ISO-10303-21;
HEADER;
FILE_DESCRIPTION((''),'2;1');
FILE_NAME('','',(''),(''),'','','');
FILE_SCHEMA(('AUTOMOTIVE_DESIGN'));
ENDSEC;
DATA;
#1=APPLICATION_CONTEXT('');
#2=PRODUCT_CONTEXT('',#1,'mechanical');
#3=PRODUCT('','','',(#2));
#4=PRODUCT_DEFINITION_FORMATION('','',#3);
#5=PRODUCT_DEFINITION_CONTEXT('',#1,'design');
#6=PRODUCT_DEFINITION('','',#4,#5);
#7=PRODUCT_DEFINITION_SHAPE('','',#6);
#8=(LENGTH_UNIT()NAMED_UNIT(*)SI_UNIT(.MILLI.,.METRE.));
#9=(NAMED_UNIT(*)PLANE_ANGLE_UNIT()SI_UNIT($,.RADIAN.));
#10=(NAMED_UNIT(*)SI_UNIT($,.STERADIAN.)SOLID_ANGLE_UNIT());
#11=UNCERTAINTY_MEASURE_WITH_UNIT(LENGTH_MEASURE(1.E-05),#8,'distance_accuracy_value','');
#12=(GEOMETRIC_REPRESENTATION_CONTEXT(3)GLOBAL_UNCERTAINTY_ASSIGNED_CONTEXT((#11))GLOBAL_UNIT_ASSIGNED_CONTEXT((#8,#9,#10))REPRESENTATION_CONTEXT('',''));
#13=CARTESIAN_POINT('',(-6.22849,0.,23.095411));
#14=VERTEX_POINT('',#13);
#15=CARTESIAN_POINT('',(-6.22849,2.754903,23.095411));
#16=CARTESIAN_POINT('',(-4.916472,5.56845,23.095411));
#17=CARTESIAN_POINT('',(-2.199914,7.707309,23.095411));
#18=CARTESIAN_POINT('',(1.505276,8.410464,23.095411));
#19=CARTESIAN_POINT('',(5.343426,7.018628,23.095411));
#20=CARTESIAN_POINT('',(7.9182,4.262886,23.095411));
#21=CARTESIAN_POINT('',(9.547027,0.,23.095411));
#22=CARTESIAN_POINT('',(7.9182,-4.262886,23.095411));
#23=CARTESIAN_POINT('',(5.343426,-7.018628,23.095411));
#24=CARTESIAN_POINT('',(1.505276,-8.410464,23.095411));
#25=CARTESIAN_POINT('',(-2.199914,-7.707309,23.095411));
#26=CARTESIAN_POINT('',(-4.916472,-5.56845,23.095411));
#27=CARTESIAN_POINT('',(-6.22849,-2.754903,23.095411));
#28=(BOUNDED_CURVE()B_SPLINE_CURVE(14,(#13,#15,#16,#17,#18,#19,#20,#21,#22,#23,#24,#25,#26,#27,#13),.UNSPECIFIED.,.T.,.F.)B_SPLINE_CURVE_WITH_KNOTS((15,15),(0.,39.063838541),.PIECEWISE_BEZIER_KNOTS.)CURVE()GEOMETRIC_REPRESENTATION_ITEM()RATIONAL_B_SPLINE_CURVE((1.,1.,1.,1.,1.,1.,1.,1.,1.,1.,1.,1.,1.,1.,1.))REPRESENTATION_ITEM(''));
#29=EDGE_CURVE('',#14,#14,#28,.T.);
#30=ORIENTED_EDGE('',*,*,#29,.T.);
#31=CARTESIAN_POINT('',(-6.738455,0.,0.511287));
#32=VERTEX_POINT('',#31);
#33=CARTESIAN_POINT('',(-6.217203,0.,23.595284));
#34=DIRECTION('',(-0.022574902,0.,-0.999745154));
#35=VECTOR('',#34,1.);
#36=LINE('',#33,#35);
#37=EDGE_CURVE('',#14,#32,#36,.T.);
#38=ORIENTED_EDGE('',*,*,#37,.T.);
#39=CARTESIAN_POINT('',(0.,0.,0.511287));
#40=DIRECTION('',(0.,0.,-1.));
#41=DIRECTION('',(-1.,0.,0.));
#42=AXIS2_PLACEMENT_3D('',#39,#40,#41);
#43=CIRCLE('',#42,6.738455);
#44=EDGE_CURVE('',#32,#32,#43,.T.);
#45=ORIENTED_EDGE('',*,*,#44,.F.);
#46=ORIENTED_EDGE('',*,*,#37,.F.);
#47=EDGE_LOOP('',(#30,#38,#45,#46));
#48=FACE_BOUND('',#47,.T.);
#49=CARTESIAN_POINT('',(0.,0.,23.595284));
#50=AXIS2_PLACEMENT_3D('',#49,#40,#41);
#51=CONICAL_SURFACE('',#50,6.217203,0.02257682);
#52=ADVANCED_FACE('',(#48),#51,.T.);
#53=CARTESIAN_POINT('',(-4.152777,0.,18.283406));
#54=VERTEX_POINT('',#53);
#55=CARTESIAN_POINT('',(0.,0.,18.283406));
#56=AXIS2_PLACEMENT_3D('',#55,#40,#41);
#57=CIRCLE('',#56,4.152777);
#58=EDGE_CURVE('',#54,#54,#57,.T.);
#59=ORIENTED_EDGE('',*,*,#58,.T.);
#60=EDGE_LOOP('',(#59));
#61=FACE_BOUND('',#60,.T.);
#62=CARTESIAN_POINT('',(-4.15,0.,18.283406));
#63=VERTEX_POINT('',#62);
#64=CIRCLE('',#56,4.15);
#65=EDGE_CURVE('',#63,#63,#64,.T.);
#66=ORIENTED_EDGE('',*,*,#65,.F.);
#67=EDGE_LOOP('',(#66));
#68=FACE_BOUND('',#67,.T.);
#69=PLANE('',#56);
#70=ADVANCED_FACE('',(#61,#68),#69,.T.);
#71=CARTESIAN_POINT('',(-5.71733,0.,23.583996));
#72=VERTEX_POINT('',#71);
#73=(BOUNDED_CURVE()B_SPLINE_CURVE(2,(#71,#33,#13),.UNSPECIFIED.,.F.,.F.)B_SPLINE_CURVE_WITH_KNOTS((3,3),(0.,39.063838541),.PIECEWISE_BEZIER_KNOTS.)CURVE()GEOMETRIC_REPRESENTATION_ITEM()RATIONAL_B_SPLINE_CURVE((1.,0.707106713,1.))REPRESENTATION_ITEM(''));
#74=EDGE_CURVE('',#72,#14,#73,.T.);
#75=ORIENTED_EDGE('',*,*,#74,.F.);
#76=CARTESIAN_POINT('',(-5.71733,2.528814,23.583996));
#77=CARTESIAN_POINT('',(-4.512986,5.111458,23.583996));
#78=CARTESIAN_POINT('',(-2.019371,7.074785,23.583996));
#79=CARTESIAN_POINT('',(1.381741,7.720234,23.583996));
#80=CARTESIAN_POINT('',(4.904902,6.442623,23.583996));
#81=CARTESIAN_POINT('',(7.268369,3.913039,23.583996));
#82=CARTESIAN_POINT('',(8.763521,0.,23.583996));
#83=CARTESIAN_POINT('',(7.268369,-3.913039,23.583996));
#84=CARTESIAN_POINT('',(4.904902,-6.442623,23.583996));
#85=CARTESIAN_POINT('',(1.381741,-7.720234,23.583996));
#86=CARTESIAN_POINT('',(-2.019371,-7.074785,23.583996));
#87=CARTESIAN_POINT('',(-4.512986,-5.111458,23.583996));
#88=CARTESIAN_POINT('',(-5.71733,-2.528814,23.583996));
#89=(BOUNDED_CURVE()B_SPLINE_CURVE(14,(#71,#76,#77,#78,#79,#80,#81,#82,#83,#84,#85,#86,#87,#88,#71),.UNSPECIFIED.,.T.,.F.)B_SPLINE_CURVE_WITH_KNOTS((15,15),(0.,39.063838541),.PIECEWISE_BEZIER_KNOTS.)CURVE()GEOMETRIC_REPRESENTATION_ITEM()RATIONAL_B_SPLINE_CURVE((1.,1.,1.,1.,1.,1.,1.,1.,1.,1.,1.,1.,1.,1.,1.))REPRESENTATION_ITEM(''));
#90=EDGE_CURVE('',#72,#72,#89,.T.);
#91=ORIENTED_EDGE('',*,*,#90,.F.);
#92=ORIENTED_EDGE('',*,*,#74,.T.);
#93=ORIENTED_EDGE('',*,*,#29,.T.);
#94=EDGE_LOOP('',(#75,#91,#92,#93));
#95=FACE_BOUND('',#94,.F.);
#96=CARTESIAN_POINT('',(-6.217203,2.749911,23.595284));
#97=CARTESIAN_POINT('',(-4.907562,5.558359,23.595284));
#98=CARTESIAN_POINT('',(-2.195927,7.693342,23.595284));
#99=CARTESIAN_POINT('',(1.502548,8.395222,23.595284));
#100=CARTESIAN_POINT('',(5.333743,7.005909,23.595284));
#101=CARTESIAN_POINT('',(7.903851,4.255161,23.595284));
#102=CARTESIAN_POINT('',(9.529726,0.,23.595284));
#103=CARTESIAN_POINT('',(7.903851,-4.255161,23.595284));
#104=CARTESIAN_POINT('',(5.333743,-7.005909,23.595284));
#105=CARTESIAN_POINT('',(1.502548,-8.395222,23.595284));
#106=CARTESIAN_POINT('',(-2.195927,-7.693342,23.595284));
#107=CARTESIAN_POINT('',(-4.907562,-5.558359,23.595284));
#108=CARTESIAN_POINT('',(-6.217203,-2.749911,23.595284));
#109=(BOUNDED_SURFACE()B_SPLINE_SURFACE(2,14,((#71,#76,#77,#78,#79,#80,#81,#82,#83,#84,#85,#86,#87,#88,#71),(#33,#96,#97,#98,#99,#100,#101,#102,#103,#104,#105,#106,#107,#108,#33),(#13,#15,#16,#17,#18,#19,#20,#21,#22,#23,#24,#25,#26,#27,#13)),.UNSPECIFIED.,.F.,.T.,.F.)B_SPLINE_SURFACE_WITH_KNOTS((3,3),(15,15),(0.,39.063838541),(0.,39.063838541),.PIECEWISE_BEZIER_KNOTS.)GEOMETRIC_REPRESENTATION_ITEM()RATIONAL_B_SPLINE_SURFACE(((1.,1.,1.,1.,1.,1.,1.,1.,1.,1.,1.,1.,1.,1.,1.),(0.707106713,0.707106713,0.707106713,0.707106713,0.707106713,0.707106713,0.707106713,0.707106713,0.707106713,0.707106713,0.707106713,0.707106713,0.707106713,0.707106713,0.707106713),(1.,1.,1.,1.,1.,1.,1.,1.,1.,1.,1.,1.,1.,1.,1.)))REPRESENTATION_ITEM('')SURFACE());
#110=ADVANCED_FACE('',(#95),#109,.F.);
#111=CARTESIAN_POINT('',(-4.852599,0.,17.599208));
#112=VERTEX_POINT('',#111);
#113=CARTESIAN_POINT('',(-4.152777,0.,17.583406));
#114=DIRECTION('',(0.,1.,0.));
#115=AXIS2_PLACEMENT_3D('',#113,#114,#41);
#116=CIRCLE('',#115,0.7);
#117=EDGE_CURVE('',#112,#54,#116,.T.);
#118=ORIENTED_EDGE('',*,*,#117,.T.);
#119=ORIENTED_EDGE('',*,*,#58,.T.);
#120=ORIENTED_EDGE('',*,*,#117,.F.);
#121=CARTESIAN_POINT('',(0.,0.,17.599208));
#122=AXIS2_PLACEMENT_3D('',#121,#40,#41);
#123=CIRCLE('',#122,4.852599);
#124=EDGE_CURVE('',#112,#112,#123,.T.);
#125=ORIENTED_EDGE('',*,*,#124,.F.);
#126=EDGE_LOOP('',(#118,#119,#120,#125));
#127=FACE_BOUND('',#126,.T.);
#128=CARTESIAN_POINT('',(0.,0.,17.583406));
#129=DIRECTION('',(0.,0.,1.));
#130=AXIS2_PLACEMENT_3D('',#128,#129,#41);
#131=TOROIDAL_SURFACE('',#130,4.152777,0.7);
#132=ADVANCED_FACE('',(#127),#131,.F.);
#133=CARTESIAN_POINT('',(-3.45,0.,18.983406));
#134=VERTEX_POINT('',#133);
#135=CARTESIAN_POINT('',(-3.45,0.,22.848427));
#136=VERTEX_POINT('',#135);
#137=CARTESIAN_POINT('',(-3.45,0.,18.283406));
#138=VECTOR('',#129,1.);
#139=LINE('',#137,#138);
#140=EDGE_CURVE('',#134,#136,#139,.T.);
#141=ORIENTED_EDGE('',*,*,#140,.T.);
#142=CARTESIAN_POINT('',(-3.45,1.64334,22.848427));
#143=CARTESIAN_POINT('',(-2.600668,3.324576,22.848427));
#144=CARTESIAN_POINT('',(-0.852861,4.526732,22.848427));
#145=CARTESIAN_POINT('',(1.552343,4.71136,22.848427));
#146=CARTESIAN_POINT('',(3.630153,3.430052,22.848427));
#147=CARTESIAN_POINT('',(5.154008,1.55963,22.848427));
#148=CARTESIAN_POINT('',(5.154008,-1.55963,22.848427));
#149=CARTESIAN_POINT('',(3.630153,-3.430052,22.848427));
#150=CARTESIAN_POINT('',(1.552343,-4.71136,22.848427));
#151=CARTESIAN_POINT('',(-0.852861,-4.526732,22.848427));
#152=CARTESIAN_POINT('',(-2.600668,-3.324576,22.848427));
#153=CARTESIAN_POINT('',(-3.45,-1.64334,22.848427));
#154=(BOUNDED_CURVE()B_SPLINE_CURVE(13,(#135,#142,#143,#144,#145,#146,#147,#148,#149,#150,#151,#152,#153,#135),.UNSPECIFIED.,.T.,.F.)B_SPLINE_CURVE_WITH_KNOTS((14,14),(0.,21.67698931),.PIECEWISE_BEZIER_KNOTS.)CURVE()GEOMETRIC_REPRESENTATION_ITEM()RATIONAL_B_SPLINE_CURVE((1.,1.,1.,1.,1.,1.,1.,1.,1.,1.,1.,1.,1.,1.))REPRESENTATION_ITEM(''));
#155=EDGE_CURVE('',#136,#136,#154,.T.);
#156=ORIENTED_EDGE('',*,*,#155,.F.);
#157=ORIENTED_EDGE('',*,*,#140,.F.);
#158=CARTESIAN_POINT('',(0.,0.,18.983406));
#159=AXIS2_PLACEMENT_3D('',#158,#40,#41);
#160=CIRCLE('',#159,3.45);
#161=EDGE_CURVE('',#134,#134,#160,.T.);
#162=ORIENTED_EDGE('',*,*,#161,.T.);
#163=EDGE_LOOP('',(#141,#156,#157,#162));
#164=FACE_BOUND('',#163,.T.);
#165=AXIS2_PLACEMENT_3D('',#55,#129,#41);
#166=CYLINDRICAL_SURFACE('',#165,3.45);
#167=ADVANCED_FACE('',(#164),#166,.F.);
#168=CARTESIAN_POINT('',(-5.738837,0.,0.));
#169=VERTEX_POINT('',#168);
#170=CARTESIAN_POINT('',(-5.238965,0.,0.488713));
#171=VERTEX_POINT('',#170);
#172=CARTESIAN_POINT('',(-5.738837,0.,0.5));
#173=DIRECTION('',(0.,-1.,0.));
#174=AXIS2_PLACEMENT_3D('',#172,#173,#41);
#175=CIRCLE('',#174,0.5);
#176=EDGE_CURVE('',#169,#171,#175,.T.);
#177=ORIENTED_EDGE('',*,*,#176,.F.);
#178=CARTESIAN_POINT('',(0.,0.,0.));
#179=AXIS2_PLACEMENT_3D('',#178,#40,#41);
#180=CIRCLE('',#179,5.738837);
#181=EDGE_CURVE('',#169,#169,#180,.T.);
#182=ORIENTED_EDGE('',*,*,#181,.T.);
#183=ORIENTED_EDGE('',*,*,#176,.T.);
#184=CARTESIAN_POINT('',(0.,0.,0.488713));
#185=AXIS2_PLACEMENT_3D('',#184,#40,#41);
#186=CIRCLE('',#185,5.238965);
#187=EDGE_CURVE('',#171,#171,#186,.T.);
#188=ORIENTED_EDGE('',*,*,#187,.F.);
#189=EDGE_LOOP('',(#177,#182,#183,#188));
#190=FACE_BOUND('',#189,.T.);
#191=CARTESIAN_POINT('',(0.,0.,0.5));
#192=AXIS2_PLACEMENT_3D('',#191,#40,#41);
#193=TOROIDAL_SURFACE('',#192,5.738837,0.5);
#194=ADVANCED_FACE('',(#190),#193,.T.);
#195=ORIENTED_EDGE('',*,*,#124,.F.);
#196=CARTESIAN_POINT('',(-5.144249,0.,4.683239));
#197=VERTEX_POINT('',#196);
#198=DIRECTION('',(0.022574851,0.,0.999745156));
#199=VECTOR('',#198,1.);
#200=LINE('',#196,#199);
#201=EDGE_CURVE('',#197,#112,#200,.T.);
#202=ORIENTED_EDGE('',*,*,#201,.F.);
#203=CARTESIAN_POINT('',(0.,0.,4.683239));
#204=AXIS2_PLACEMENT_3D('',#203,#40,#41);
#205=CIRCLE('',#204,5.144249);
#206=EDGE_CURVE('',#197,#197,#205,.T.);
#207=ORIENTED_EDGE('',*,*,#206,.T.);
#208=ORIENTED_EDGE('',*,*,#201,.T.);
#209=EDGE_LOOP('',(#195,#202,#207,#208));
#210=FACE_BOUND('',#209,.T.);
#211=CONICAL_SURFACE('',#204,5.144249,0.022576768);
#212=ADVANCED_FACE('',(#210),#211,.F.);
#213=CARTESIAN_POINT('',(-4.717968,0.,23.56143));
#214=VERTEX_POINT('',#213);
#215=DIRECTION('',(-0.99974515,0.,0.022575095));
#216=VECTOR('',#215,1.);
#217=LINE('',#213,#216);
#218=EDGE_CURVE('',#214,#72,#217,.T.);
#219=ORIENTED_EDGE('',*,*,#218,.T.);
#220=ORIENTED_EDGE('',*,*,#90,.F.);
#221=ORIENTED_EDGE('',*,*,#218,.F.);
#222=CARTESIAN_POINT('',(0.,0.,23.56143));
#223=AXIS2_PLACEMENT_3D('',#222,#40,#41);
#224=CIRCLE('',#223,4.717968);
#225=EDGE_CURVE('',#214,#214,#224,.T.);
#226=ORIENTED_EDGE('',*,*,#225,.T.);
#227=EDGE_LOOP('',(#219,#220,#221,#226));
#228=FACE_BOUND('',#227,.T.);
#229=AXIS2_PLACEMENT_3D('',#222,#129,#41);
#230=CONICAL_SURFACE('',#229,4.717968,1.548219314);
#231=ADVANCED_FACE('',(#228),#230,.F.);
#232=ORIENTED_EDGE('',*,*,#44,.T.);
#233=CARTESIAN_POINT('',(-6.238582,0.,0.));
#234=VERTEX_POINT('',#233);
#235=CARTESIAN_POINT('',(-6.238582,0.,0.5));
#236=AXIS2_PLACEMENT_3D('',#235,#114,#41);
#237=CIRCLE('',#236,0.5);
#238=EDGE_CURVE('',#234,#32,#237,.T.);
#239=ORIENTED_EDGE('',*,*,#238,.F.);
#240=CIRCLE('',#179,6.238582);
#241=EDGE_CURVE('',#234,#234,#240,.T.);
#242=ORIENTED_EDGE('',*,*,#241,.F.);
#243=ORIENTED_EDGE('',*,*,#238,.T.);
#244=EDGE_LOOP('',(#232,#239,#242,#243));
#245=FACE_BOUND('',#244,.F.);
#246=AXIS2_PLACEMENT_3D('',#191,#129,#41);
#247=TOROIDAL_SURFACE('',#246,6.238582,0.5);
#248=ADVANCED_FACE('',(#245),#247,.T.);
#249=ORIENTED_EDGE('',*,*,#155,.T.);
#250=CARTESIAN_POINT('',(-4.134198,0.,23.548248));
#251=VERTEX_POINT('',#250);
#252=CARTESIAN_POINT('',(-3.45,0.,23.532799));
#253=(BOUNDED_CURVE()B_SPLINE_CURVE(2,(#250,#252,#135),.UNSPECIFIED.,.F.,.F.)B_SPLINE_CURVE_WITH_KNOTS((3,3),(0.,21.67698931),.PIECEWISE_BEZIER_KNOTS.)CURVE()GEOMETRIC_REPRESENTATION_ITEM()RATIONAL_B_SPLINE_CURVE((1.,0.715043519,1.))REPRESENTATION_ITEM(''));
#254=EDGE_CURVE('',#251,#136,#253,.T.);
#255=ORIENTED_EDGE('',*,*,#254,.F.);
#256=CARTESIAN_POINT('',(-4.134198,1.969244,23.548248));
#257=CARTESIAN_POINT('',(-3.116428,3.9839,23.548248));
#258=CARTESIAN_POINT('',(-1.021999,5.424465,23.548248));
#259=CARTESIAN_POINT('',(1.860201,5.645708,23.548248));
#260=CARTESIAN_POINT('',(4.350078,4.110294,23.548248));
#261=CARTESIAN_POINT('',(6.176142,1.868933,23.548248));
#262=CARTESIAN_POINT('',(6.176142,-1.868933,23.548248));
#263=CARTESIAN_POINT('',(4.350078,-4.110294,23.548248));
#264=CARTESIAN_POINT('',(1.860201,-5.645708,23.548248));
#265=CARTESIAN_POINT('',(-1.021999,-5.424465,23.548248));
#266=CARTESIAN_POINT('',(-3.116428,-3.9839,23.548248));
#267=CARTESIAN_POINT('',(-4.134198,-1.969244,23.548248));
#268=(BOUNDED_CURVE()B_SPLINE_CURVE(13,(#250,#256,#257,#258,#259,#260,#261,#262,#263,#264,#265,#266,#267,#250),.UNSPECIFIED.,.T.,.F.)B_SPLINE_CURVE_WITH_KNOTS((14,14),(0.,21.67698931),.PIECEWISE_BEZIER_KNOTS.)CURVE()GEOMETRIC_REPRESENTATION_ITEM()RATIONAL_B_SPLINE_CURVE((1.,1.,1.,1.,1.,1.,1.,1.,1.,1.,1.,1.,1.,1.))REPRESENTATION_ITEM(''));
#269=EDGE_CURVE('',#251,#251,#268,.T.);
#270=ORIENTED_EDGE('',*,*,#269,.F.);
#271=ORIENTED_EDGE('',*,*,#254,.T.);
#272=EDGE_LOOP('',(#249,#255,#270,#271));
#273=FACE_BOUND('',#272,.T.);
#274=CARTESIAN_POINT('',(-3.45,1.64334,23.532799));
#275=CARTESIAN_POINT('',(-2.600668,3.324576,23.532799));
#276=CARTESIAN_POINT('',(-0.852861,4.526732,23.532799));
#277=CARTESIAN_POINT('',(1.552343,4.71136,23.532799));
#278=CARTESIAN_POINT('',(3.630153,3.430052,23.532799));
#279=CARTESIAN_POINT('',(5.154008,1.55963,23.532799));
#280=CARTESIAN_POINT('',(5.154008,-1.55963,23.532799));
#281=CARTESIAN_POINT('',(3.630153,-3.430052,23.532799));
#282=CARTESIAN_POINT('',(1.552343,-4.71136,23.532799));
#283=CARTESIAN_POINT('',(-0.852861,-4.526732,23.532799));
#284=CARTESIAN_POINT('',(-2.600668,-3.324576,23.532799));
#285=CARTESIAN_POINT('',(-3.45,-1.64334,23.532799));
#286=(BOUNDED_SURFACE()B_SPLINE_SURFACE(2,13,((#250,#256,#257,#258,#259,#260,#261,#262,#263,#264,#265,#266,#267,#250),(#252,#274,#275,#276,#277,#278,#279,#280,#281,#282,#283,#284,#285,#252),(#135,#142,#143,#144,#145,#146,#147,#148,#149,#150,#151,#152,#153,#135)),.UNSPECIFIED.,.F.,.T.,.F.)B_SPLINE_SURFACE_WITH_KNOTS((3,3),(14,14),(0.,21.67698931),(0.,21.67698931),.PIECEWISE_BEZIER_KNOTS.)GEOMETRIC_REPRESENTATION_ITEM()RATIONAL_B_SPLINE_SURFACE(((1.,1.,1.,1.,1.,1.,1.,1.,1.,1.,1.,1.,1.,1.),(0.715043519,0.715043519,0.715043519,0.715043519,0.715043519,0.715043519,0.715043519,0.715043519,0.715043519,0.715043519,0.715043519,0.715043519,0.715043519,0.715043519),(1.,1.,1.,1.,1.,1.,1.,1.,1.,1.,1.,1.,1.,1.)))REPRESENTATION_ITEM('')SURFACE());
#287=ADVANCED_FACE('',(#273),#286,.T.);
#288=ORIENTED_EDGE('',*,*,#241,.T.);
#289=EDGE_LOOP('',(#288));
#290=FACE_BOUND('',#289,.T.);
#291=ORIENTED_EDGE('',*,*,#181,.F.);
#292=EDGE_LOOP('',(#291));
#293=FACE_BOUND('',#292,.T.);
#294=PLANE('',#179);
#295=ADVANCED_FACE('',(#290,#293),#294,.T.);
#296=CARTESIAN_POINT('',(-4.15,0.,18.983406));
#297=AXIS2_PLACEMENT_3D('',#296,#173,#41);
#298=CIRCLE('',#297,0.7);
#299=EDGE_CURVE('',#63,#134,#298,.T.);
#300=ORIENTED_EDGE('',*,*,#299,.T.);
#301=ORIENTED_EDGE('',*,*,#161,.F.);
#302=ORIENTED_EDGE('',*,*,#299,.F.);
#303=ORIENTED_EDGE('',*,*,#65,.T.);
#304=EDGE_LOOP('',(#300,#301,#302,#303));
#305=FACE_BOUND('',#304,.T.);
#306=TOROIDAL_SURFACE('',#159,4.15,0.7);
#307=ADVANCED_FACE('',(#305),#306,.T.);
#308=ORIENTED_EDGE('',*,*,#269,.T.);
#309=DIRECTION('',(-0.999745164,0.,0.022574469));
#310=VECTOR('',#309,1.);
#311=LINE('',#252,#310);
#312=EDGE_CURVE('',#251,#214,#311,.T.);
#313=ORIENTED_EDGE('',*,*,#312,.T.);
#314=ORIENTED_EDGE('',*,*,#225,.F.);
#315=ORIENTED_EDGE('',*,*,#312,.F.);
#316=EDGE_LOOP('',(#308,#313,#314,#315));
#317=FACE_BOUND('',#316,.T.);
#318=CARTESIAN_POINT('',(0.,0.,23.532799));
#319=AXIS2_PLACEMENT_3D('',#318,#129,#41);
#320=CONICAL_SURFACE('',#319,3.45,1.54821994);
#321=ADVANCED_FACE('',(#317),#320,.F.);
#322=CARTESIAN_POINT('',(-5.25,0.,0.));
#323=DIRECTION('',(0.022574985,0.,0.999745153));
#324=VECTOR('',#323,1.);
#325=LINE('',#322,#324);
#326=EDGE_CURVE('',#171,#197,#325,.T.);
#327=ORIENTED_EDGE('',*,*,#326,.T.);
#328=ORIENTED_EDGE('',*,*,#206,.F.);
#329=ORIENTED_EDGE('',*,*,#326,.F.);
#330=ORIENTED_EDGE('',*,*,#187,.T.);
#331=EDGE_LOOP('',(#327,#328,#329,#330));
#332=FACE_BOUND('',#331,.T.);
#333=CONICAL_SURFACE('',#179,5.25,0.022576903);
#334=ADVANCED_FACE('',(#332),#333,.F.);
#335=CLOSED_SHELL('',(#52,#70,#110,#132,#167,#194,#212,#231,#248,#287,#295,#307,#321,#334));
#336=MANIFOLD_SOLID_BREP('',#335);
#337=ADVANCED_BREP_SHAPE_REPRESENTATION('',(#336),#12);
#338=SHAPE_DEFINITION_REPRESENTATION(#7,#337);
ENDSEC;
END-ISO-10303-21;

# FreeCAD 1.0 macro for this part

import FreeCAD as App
import Part
import Sketcher

V = App.Vector
Q = App.Units.Quantity


def edges_at(feature, points):
    """Names of the edges that pass closest to the given points."""
    edges = feature.Shape.Edges
    near = lambda p: min(range(len(edges)), key=lambda i: edges[i].distToShape(Part.Vertex(*p))[0])
    return sorted({f"Edge{near(p) + 1}" for p in points})


def add_polygon(sketch, points):
    """Adds a closed chain of lines whose ends are joined by coincident constraints."""
    first, n = sketch.GeometryCount, len(points)
    for a, b in zip(points, points[1:] + points[:1]):
        sketch.addGeometry(Part.LineSegment(App.Vector(*a, 0), App.Vector(*b, 0)), False)
    for i in range(n):
        sketch.addConstraint(Sketcher.Constraint("Coincident", first + i, 2, first + (i + 1) % n, 1))

doc = App.newDocument("Part")
body = doc.addObject("PartDesign::Body", "Body")

sketch1 = doc.addObject("Sketcher::SketchObject", "Sketch")
body.addObject(sketch1)
sketch1.AttachmentSupport = (doc.XZ_Plane, [""])
sketch1.MapMode = "FlatFace"
add_polygon(sketch1, [(-6.75, 0), (-5.25, 0), (-5.144249, 4.683239), (-4.837149, 18.283406), (-3.45, 18.283406), (-3.45, 23.532799), (-4.717968, 23.56143), (-6.217203, 23.595284)])
sketch1.addConstraint([
    Sketcher.Constraint("Horizontal", 0),
    Sketcher.Constraint("Horizontal", 3),
    Sketcher.Constraint("Vertical", 4),
    Sketcher.Constraint("PointOnObject", 0, 2, -1),
    Sketcher.Constraint("DistanceX", 0, 1, 0, 2, Q("1.5 mm")),
    Sketcher.Constraint("DistanceX", 0, 2, 3, 2, Q("1.8 mm")),
    Sketcher.Constraint("DistanceX", 0, 2, -1, 1, Q("5.25 mm")),
    Sketcher.Constraint("Distance", 7, Q("23.601299 mm")),
    Sketcher.Constraint("DistanceX", 3, 1, 3, 2, Q("1.387149 mm")),
    Sketcher.Constraint("DistanceY", -1, 1, 4, 2, Q("23.532799 mm")),
    Sketcher.Constraint("DistanceX", 1, 2, 2, 2, Q("0.3071 mm")),
    Sketcher.Constraint("Distance", 5, Q("1.268291 mm")),
    Sketcher.Constraint("DistanceY", 4, 1, 4, 2, Q("5.249393 mm")),
    Sketcher.Constraint("DistanceY", -1, 1, 1, 2, Q("4.683239 mm")),
    Sketcher.Constraint("DistanceY", -1, 1, 5, 2, Q("23.56143 mm")),
    Sketcher.Constraint("Distance", 6, Q("1.499617 mm")),
])
revolution = doc.addObject("PartDesign::Revolution", "Revolution")
body.addObject(revolution)
revolution.Profile = sketch1
revolution.ReferenceAxis = (sketch1, ["V_Axis"])
revolution.Angle = 360
doc.recompute()

fillet = doc.addObject("PartDesign::Fillet", "Fillet")
body.addObject(fillet)
fillet.Base = (revolution, edges_at(revolution, [(6.217, 0, 23.595), (6.75, 0, 0), (5.25, 0, 0)]))
fillet.Radius = 0.5
doc.recompute()

fillet2 = doc.addObject("PartDesign::Fillet", "Fillet001")
body.addObject(fillet2)
fillet2.Base = (fillet, edges_at(fillet, [
    (3.45, 0, 18.283),
    (3.45, 0, 23.533),
    (-3.45, 0, 20.908),
    (4.837, 0, 18.283),
]))
fillet2.Radius = 0.7

doc.recompute()
